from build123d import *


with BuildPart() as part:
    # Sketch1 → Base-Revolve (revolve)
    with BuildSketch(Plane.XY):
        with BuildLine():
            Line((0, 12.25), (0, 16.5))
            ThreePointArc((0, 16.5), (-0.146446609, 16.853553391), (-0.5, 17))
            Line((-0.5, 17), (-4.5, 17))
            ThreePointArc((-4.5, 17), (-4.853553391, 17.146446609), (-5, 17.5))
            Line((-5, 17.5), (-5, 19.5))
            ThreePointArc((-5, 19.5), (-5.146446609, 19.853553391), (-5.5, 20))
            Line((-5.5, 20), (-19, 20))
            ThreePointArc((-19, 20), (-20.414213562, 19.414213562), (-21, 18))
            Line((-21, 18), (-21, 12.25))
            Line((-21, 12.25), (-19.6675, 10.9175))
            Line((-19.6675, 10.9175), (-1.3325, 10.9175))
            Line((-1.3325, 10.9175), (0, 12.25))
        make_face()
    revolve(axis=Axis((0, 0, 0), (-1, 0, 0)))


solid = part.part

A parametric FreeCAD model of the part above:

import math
import FreeCAD as App
import Part
import Sketcher
from FreeCAD import Vector
Q = App.Units.Quantity

doc = App.newDocument("Part")
params = doc.addObject("Spreadsheet::Sheet", "Params")
for row, (alias, value) in enumerate([
    ("sketch1_radius", "2 mm"),
    ("sketch1_radius2", "0.5 mm"),
    ("sketch1_width", "4 mm"),
    ("sketch1_height", "2 mm"),
    ("sketch1_width2", "13.5 mm"),
    ("revolution_angle", "360 deg"),
], start=1):
    params.set(f"A{row}", alias)
    params.set(f"B{row}", "=" + value)
    params.setAlias(f"B{row}", alias)

body = doc.addObject("PartDesign::Body", "Body")

sketch1 = doc.addObject("Sketcher::SketchObject", "Sketch")
body.addObject(sketch1)
sketch1.AttachmentSupport = (doc.XY_Plane, [""])
sketch1.MapMode = "FlatFace"
sketch1.addGeometry([
    Part.LineSegment(Vector(0, 12.25, 0), Vector(0, 16.5, 0)),
    Part.ArcOfCircle(Part.Circle(Vector(-0.5, 16.5, 0), Vector(0, 0, 1), 0.5), math.radians(0), math.radians(90)),
    Part.LineSegment(Vector(-0.5, 17, 0), Vector(-4.5, 17, 0)),
    Part.ArcOfCircle(Part.Circle(Vector(-4.5, 17.5, 0), Vector(0, 0, 1), 0.5), math.radians(180), math.radians(270)),
    Part.LineSegment(Vector(-5, 17.5, 0), Vector(-5, 19.5, 0)),
    Part.ArcOfCircle(Part.Circle(Vector(-5.5, 19.5, 0), Vector(0, 0, 1), 0.5), math.radians(0), math.radians(90)),
    Part.LineSegment(Vector(-5.5, 20, 0), Vector(-19, 20, 0)),
    Part.ArcOfCircle(Part.Circle(Vector(-19, 18, 0), Vector(0, 0, 1), 2), math.radians(90), math.radians(180)),
    Part.LineSegment(Vector(-21, 18, 0), Vector(-21, 12.25, 0)),
    Part.LineSegment(Vector(-21, 12.25, 0), Vector(-19.6675, 10.9175, 0)),
    Part.LineSegment(Vector(-19.6675, 10.9175, 0), Vector(-1.3325, 10.9175, 0)),
    Part.LineSegment(Vector(-1.3325, 10.9175, 0), Vector(0, 12.25, 0)),
], False)
sketch1.addConstraint([
    Sketcher.Constraint("Tangent", 0, 2, 1, 1),
    Sketcher.Constraint("Tangent", 1, 2, 2, 1),
    Sketcher.Constraint("Tangent", 2, 2, 3, 2),
    Sketcher.Constraint("Tangent", 3, 1, 4, 1),
    Sketcher.Constraint("Tangent", 4, 2, 5, 1),
    Sketcher.Constraint("Tangent", 5, 2, 6, 1),
    Sketcher.Constraint("Tangent", 6, 2, 7, 1),
    Sketcher.Constraint("Tangent", 7, 2, 8, 1),
    Sketcher.Constraint("Coincident", 8, 2, 9, 1),
    Sketcher.Constraint("Coincident", 9, 2, 10, 1),
    Sketcher.Constraint("Coincident", 10, 2, 11, 1),
    Sketcher.Constraint("Coincident", 11, 2, 0, 1),
    Sketcher.Constraint("Vertical", 0),
    Sketcher.Constraint("Horizontal", 2),
    Sketcher.Constraint("Vertical", 4),
    Sketcher.Constraint("Horizontal", 6),
    Sketcher.Constraint("Vertical", 8),
    Sketcher.Constraint("Horizontal", 10),
    Sketcher.Constraint("Equal", 1, 3),
    Sketcher.Constraint("Equal", 3, 5),
    Sketcher.Constraint("PointOnObject", 0, 2, -2),
    Sketcher.Constraint("Perpendicular", 9, 11),
    Sketcher.Constraint("Horizontal", 8, 2, 11, 2),
    Sketcher.Constraint("Equal", 9, 11),
    Sketcher.Constraint("Radius", 7, Q("2 mm")),
    Sketcher.Constraint("Radius", 1, Q("0.5 mm")),
    Sketcher.Constraint("DistanceX", 2, 2, 2, 1, Q("4 mm")),
    Sketcher.Constraint("DistanceY", 4, 1, 4, 2, Q("2 mm")),
    Sketcher.Constraint("DistanceX", 6, 2, 6, 1, Q("13.5 mm")),
    Sketcher.Constraint("DistanceY", -1, 1, 7, 3, Q("18 mm")),
    Sketcher.Constraint("DistanceY", 0, 1, 0, 2, Q("4.25 mm")),
    Sketcher.Constraint("DistanceX", 10, 1, 10, 2, Q("18.335 mm")),
])
sketch1.setExpression("Constraints[24]", "Params.sketch1_radius")
sketch1.setExpression("Constraints[25]", "Params.sketch1_radius2")
sketch1.setExpression("Constraints[26]", "Params.sketch1_width")
sketch1.setExpression("Constraints[27]", "Params.sketch1_height")
sketch1.setExpression("Constraints[28]", "Params.sketch1_width2")
revolution = doc.addObject("PartDesign::Revolution", "Revolution")
body.addObject(revolution)
revolution.Profile = sketch1
revolution.ReferenceAxis = (sketch1, ["H_Axis"])
revolution.setExpression("Angle", "Params.revolution_angle")

doc.recompute()
